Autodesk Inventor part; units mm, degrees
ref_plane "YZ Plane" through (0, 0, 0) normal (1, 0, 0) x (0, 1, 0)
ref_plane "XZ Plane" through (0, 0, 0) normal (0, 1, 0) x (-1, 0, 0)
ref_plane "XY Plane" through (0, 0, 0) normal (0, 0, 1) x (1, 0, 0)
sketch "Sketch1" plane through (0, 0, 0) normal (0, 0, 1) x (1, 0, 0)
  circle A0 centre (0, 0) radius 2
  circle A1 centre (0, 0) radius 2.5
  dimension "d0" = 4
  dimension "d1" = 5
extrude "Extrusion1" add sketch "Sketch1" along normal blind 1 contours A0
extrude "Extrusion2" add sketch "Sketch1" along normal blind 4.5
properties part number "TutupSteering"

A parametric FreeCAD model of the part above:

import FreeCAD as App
import Part
import Sketcher

V = App.Vector

doc = App.newDocument("Part")
body = doc.addObject("PartDesign::Body", "Body")

# Sketch on XY plane
sketch1 = body.newObject("Sketcher::SketchObject", "Sketch")
sketch1.AttachmentSupport = (doc.getObject("XY_Plane"), [""])
sketch1.MapMode = "FlatFace"
sketch1.addGeometry(Part.Circle(V(0, 0, 0), V(0, 0, 1), 2), False)
sketch1.addConstraint([
    Sketcher.Constraint("Coincident", 0, 3, -1, 1),
    Sketcher.Constraint("Diameter", 0, 4.0),
])
pad1 = body.newObject("PartDesign::Pad", "Pad")
pad1.Profile = sketch1
pad1.Length = 1

# Sketch on XY plane
sketch2 = body.newObject("Sketcher::SketchObject", "Sketch001")
sketch2.AttachmentSupport = (doc.getObject("XY_Plane"), [""])
sketch2.MapMode = "FlatFace"
sketch2.addGeometry([
    Part.Circle(V(0, 0, 0), V(0, 0, 1), 2.5),
    Part.Circle(V(0, 0, 0), V(0, 0, 1), 2),
], False)
sketch2.addConstraint([
    Sketcher.Constraint("Coincident", 0, 3, -1, 1),
    Sketcher.Constraint("Coincident", 1, 3, -1, 1),
    Sketcher.Constraint("Diameter", 0, 5.0),
    Sketcher.Constraint("Diameter", 1, 4.0),
])
pad2 = body.newObject("PartDesign::Pad", "Pad001")
pad2.Profile = sketch2
pad2.Length = 4.5

doc.recompute()
